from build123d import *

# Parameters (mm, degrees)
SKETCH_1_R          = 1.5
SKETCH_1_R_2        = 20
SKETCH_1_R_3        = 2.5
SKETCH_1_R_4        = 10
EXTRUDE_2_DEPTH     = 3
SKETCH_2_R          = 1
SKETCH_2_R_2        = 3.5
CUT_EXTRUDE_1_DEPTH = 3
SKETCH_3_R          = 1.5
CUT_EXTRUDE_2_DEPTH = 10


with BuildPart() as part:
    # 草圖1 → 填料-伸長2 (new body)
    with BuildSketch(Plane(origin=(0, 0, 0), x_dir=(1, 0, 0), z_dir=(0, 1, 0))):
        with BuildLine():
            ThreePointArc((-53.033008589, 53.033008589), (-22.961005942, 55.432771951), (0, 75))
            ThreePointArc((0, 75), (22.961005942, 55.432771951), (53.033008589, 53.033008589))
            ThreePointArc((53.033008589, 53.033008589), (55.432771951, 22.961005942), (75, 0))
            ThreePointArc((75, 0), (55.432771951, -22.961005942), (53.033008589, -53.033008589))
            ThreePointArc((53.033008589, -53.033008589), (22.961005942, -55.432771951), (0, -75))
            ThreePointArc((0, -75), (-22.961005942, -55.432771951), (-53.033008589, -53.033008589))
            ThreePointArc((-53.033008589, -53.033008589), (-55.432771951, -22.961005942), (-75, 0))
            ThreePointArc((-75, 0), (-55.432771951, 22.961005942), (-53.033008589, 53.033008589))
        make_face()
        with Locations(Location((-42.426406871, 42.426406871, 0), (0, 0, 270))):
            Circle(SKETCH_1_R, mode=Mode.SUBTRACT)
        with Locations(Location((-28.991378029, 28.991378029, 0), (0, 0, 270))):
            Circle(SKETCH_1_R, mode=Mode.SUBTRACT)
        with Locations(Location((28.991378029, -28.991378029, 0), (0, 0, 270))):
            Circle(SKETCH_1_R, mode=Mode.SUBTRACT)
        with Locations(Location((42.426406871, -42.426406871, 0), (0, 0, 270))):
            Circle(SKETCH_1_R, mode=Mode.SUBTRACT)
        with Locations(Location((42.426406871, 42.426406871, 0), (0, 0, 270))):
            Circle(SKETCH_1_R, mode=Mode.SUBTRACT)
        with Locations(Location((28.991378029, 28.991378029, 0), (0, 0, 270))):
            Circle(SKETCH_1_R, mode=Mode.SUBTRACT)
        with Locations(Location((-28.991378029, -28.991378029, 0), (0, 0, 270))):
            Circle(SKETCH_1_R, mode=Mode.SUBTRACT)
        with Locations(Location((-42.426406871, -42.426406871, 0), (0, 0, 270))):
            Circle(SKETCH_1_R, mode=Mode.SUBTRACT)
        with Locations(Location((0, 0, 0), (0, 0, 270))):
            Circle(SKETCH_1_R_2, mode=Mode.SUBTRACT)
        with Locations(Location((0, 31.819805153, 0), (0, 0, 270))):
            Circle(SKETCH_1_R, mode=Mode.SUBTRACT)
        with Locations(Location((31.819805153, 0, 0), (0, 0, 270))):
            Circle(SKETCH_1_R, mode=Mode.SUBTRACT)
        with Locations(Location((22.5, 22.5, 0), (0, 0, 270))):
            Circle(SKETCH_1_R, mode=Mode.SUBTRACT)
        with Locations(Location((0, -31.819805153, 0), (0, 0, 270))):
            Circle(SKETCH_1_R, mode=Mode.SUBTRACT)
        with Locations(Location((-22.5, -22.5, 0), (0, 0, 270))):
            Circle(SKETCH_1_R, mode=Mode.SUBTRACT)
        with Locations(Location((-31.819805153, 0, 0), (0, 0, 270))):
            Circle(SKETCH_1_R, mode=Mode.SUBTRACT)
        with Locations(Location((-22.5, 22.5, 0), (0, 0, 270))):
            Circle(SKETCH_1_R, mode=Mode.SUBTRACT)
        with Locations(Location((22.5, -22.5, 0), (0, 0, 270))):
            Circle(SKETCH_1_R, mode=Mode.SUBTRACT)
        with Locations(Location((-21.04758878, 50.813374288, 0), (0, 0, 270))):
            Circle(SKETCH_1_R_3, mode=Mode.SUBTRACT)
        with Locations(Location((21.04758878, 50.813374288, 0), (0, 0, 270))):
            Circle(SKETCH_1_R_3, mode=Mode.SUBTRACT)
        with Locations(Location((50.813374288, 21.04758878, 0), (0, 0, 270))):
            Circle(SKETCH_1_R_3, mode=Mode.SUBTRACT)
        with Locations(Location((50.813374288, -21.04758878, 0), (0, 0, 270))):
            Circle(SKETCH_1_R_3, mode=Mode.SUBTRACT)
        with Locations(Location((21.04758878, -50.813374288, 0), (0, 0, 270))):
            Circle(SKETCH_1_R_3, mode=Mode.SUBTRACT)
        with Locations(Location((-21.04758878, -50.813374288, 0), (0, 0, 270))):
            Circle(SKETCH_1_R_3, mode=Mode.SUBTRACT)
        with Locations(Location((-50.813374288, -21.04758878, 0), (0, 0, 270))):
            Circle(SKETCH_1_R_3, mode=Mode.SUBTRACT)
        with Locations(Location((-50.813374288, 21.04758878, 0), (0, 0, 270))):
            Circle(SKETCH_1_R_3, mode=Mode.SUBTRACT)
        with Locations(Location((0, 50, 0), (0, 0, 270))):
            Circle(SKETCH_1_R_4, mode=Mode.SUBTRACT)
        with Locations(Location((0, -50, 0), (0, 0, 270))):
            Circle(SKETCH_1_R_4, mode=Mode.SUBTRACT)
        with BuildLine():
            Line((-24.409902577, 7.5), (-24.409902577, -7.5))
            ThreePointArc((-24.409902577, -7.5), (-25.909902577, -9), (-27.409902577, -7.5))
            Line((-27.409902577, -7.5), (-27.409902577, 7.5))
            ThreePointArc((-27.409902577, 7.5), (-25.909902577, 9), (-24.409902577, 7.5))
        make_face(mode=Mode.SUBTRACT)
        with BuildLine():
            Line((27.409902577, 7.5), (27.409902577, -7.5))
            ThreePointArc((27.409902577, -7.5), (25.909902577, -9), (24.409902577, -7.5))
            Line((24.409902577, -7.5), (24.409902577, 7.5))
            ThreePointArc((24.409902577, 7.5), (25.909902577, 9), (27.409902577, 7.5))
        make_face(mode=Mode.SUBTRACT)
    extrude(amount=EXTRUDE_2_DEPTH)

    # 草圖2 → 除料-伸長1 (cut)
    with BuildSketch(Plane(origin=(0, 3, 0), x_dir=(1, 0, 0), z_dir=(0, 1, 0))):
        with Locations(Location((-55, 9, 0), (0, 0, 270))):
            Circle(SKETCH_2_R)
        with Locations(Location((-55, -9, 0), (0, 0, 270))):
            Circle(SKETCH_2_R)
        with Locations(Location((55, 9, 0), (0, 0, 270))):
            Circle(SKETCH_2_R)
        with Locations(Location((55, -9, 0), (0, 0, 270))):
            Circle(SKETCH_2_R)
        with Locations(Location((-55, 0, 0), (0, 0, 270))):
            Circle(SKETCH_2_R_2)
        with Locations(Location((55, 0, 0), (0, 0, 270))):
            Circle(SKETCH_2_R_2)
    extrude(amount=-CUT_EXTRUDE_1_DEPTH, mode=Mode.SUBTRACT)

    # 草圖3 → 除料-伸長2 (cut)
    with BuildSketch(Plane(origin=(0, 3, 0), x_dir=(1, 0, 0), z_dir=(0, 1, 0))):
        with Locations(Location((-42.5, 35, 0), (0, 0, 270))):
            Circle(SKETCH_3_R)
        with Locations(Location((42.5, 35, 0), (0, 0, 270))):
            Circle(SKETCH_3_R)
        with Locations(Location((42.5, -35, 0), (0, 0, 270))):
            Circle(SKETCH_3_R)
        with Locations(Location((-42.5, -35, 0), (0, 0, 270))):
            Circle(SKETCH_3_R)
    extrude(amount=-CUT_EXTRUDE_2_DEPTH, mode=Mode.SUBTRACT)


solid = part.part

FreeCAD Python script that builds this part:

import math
import FreeCAD as App
import Part
import Sketcher
from FreeCAD import Vector
Q = App.Units.Quantity

doc = App.newDocument("Part")
body = doc.addObject("PartDesign::Body", "Body")

# Sketch on XZ plane
sketch1 = body.newObject("Sketcher::SketchObject", "Sketch")
sketch1.AttachmentSupport = (doc.getObject("XZ_Plane"), [""])
sketch1.MapMode = "FlatFace"
sketch1.addGeometry(Part.ArcOfCircle(Part.Circle(Vector(-41.703631, -100.681472, 0), Vector(0, 0, 1), 48.97684), math.radians(31.625136), math.radians(103.374864)), False)
sketch1.addGeometry(Part.ArcOfCircle(Part.Circle(Vector(-100.681472, -41.703631, 0), Vector(0, 0, 1), 48.97684), math.radians(-13.374864), math.radians(58.374864)), False)
sketch1.addGeometry(Part.ArcOfCircle(Part.Circle(Vector(-100.681472, 41.703631, 0), Vector(0, 0, 1), 48.97684), math.radians(-58.374864), math.radians(13.374864)), False)
sketch1.addGeometry(Part.ArcOfCircle(Part.Circle(Vector(-41.703631, 100.681472, 0), Vector(0, 0, 1), 48.97684), math.radians(-103.374864), math.radians(-31.625136)), False)
sketch1.addGeometry(Part.ArcOfCircle(Part.Circle(Vector(41.703631, 100.681472, 0), Vector(0, 0, 1), 48.97684), math.radians(-148.374864), math.radians(-76.625136)), False)
sketch1.addGeometry(Part.ArcOfCircle(Part.Circle(Vector(100.681472, 41.703631, 0), Vector(0, 0, 1), 48.97684), math.radians(166.625136), math.radians(238.374864)), False)
sketch1.addGeometry(Part.ArcOfCircle(Part.Circle(Vector(100.681472, -41.703631, 0), Vector(0, 0, 1), 48.97684), math.radians(121.625136), math.radians(193.374864)), False)
sketch1.addGeometry(Part.ArcOfCircle(Part.Circle(Vector(41.703631, -100.681472, 0), Vector(0, 0, 1), 48.97684), math.radians(76.625136), math.radians(148.374864)), False)
sketch1.addGeometry(Part.Circle(Vector(42.426407, 42.426407, 0), Vector(0, 0, 1), 1.5), False)
sketch1.addGeometry(Part.Circle(Vector(21.047589, 50.813374, 0), Vector(0, 0, 1), 2.5), False)
sketch1.addGeometry(Part.Circle(Vector(50.813374, 21.047589, 0), Vector(0, 0, 1), 2.5), False)
sketch1.addGeometry(Part.Circle(Vector(28.991378, 28.991378, 0), Vector(0, 0, 1), 1.5), False)
sketch1.addGeometry(Part.Circle(Vector(22.5, 22.5, 0), Vector(0, 0, 1), 1.5), False)
sketch1.addGeometry(Part.Circle(Vector(0, 50, 0), Vector(0, 0, 1), 10), False)
sketch1.addGeometry(Part.Circle(Vector(-21.047589, 50.813374, 0), Vector(0, 0, 1), 2.5), False)
sketch1.addGeometry(Part.Circle(Vector(0, 31.819805, 0), Vector(0, 0, 1), 1.5), False)
sketch1.addGeometry(Part.Circle(Vector(-42.426407, 42.426407, 0), Vector(0, 0, 1), 1.5), False)
sketch1.addGeometry(Part.Circle(Vector(-22.5, 22.5, 0), Vector(0, 0, 1), 1.5), False)
sketch1.addGeometry(Part.Circle(Vector(-28.991378, 28.991378, 0), Vector(0, 0, 1), 1.5), False)
sketch1.addGeometry(Part.Circle(Vector(-50.813374, 21.047589, 0), Vector(0, 0, 1), 2.5), False)
sketch1.addGeometry(Part.Circle(Vector(31.819805, 0, 0), Vector(0, 0, 1), 1.5), False)
sketch1.addGeometry(Part.Circle(Vector(50.813374, -21.047589, 0), Vector(0, 0, 1), 2.5), False)
sketch1.addGeometry(Part.Circle(Vector(28.991378, -28.991378, 0), Vector(0, 0, 1), 1.5), False)
sketch1.addGeometry(Part.LineSegment(Vector(27.409903, -7.5, 0), Vector(27.409903, 7.5, 0)), False)
sketch1.addGeometry(Part.ArcOfCircle(Part.Circle(Vector(25.909903, 7.5, 0), Vector(0, 0, 1), 1.5), math.radians(0), math.radians(180)), False)
sketch1.addGeometry(Part.LineSegment(Vector(24.409903, 7.5, 0), Vector(24.409903, -7.5, 0)), False)
sketch1.addGeometry(Part.ArcOfCircle(Part.Circle(Vector(25.909903, -7.5, 0), Vector(0, 0, 1), 1.5), math.radians(180), math.radians(360)), False)
sketch1.addGeometry(Part.Circle(Vector(22.5, -22.5, 0), Vector(0, 0, 1), 1.5), False)
sketch1.addGeometry(Part.Circle(Vector(42.426407, -42.426407, 0), Vector(0, 0, 1), 1.5), False)
sketch1.addGeometry(Part.Circle(Vector(21.047589, -50.813374, 0), Vector(0, 0, 1), 2.5), False)
sketch1.addGeometry(Part.Circle(Vector(0, 0, 0), Vector(0, 0, 1), 20), False)
sketch1.addGeometry(Part.LineSegment(Vector(-24.409903, -7.5, 0), Vector(-24.409903, 7.5, 0)), False)
sketch1.addGeometry(Part.ArcOfCircle(Part.Circle(Vector(-25.909903, 7.5, 0), Vector(0, 0, 1), 1.5), math.radians(0), math.radians(180)), False)
sketch1.addGeometry(Part.LineSegment(Vector(-27.409903, 7.5, 0), Vector(-27.409903, -7.5, 0)), False)
sketch1.addGeometry(Part.ArcOfCircle(Part.Circle(Vector(-25.909903, -7.5, 0), Vector(0, 0, 1), 1.5), math.radians(180), math.radians(360)), False)
sketch1.addGeometry(Part.Circle(Vector(-22.5, -22.5, 0), Vector(0, 0, 1), 1.5), False)
sketch1.addGeometry(Part.Circle(Vector(-31.819805, 0, 0), Vector(0, 0, 1), 1.5), False)
sketch1.addGeometry(Part.Circle(Vector(-28.991378, -28.991378, 0), Vector(0, 0, 1), 1.5), False)
sketch1.addGeometry(Part.Circle(Vector(-50.813374, -21.047589, 0), Vector(0, 0, 1), 2.5), False)
sketch1.addGeometry(Part.Circle(Vector(0, -31.819805, 0), Vector(0, 0, 1), 1.5), False)
sketch1.addGeometry(Part.Circle(Vector(0, -50, 0), Vector(0, 0, 1), 10), False)
sketch1.addGeometry(Part.Circle(Vector(-21.047589, -50.813374, 0), Vector(0, 0, 1), 2.5), False)
sketch1.addGeometry(Part.Circle(Vector(-42.426407, -42.426407, 0), Vector(0, 0, 1), 1.5), False)
sketch1.addConstraint(Sketcher.Constraint("Coincident", 0, 2, 1, 1))
sketch1.addConstraint(Sketcher.Constraint("Coincident", 1, 2, 2, 1))
sketch1.addConstraint(Sketcher.Constraint("Coincident", 2, 2, 3, 1))
sketch1.addConstraint(Sketcher.Constraint("Coincident", 3, 2, 4, 1))
sketch1.addConstraint(Sketcher.Constraint("Coincident", 4, 2, 5, 1))
sketch1.addConstraint(Sketcher.Constraint("Coincident", 5, 2, 6, 1))
sketch1.addConstraint(Sketcher.Constraint("Coincident", 6, 2, 7, 1))
sketch1.addConstraint(Sketcher.Constraint("Coincident", 7, 2, 0, 1))
sketch1.addConstraint(Sketcher.Constraint("Tangent", 23, 2, 24, 1))
sketch1.addConstraint(Sketcher.Constraint("Tangent", 24, 2, 25, 1))
sketch1.addConstraint(Sketcher.Constraint("Tangent", 25, 2, 26, 1))
sketch1.addConstraint(Sketcher.Constraint("Tangent", 26, 2, 23, 1))
sketch1.addConstraint(Sketcher.Constraint("Tangent", 31, 2, 32, 1))
sketch1.addConstraint(Sketcher.Constraint("Tangent", 32, 2, 33, 1))
sketch1.addConstraint(Sketcher.Constraint("Tangent", 33, 2, 34, 1))
sketch1.addConstraint(Sketcher.Constraint("Tangent", 34, 2, 31, 1))
sketch1.addConstraint(Sketcher.Constraint("Vertical", 23))
sketch1.addConstraint(Sketcher.Constraint("Vertical", 25))
sketch1.addConstraint(Sketcher.Constraint("Vertical", 31))
sketch1.addConstraint(Sketcher.Constraint("Vertical", 33))
sketch1.addConstraint(Sketcher.Constraint("Coincident", 30, 3, -1, 1))
sketch1.addConstraint(Sketcher.Constraint("Equal", 0, 1))
sketch1.addConstraint(Sketcher.Constraint("Equal", 1, 2))
sketch1.addConstraint(Sketcher.Constraint("Equal", 2, 3))
sketch1.addConstraint(Sketcher.Constraint("Equal", 3, 4))
sketch1.addConstraint(Sketcher.Constraint("Equal", 4, 5))
sketch1.addConstraint(Sketcher.Constraint("Equal", 5, 6))
sketch1.addConstraint(Sketcher.Constraint("Equal", 6, 7))
sketch1.addConstraint(Sketcher.Constraint("Equal", 9, 10))
sketch1.addConstraint(Sketcher.Constraint("Equal", 8, 11))
sketch1.addConstraint(Sketcher.Constraint("Equal", 11, 12))
sketch1.addConstraint(Sketcher.Constraint("Equal", 10, 14))
sketch1.addConstraint(Sketcher.Constraint("Equal", 12, 15))
sketch1.addConstraint(Sketcher.Constraint("Equal", 15, 16))
sketch1.addConstraint(Sketcher.Constraint("Equal", 16, 17))
sketch1.addConstraint(Sketcher.Constraint("Equal", 17, 18))
sketch1.addConstraint(Sketcher.Constraint("Equal", 14, 19))
sketch1.addConstraint(Sketcher.Constraint("Equal", 18, 20))
sketch1.addConstraint(Sketcher.Constraint("Equal", 19, 21))
sketch1.addConstraint(Sketcher.Constraint("Equal", 20, 22))
sketch1.addConstraint(Sketcher.Constraint("Equal", 22, 24))
sketch1.addConstraint(Sketcher.Constraint("Equal", 26, 27))
sketch1.addConstraint(Sketcher.Constraint("Equal", 27, 28))
sketch1.addConstraint(Sketcher.Constraint("Equal", 21, 29))
sketch1.addConstraint(Sketcher.Constraint("Equal", 28, 32))
sketch1.addConstraint(Sketcher.Constraint("Equal", 34, 35))
sketch1.addConstraint(Sketcher.Constraint("Equal", 35, 36))
sketch1.addConstraint(Sketcher.Constraint("Equal", 36, 37))
sketch1.addConstraint(Sketcher.Constraint("Equal", 29, 38))
sketch1.addConstraint(Sketcher.Constraint("Equal", 37, 39))
sketch1.addConstraint(Sketcher.Constraint("Equal", 13, 40))
sketch1.addConstraint(Sketcher.Constraint("Equal", 38, 41))
sketch1.addConstraint(Sketcher.Constraint("Equal", 39, 42))
sketch1.addConstraint(Sketcher.Constraint("Symmetric", 0, 3, 4, 3, -1, 1))
sketch1.addConstraint(Sketcher.Constraint("Symmetric", 1, 3, 5, 3, -1, 1))
sketch1.addConstraint(Sketcher.Constraint("Symmetric", 2, 3, 6, 3, -1, 1))
sketch1.addConstraint(Sketcher.Constraint("Symmetric", 3, 3, 7, 3, -1, 1))
sketch1.addConstraint(Sketcher.Constraint("Symmetric", 19, 3, 21, 3, -1, 1))
sketch1.addConstraint(Sketcher.Constraint("Symmetric", 18, 3, 22, 3, -1, 1))
sketch1.addConstraint(Sketcher.Constraint("Symmetric", 17, 3, 27, 3, -1, 1))
sketch1.addConstraint(Sketcher.Constraint("Symmetric", 16, 3, 28, 3, -1, 1))
sketch1.addConstraint(Sketcher.Constraint("Symmetric", 14, 3, 29, 3, -1, 1))
sketch1.addConstraint(Sketcher.Constraint("Symmetric", 26, 3, 32, 3, -1, 1))
sketch1.addConstraint(Sketcher.Constraint("Symmetric", 12, 3, 35, 3, -1, 1))
sketch1.addConstraint(Sketcher.Constraint("Symmetric", 20, 3, 36, 3, -1, 1))
sketch1.addConstraint(Sketcher.Constraint("Symmetric", 11, 3, 37, 3, -1, 1))
sketch1.addConstraint(Sketcher.Constraint("Symmetric", 10, 3, 38, 3, -1, 1))
sketch1.addConstraint(Sketcher.Constraint("Symmetric", 15, 3, 39, 3, -1, 1))
sketch1.addConstraint(Sketcher.Constraint("Symmetric", 13, 3, 40, 3, -1, 1))
sketch1.addConstraint(Sketcher.Constraint("Symmetric", 9, 3, 41, 3, -1, 1))
sketch1.addConstraint(Sketcher.Constraint("Symmetric", 8, 3, 42, 3, -1, 1))
sketch1.addConstraint(Sketcher.Constraint("Symmetric", 3, 3, 4, 3, -2))
sketch1.addConstraint(Sketcher.Constraint("Symmetric", 2, 3, 5, 3, -2))
sketch1.addConstraint(Sketcher.Constraint("Symmetric", 9, 3, 14, 3, -2))
sketch1.addConstraint(Sketcher.Constraint("Symmetric", 8, 3, 16, 3, -2))
sketch1.addConstraint(Sketcher.Constraint("Symmetric", 12, 3, 17, 3, -2))
sketch1.addConstraint(Sketcher.Constraint("Symmetric", 11, 3, 18, 3, -2))
sketch1.addConstraint(Sketcher.Constraint("Symmetric", 10, 3, 19, 3, -2))
sketch1.addConstraint(Sketcher.Constraint("PointOnObject", 13, 3, -2))
sketch1.addConstraint(Sketcher.Constraint("PointOnObject", 15, 3, -2))
sketch1.addConstraint(Sketcher.Constraint("PointOnObject", 20, 3, -1))
sketch1.addConstraint(Sketcher.Constraint("Horizontal", 24, 3, 32, 3))
sketch1.addConstraint(Sketcher.Constraint("Horizontal", 26, 3, 34, 3))
sketch1.addConstraint(Sketcher.Constraint("Diameter", 8, Q("3 mm")))
sketch1.addConstraint(Sketcher.Constraint("Diameter", 9, Q("5 mm")))
sketch1.addConstraint(Sketcher.Constraint("Diameter", 13, Q("20 mm")))
sketch1.addConstraint(Sketcher.Constraint("Diameter", 30, Q("40 mm")))
sketch1.addConstraint(Sketcher.Constraint("DistanceY", 23, 1, 23, 2, Q("15 mm")))
sketch1.addConstraint(Sketcher.Constraint("DistanceY", -1, 1, 13, 3, Q("50 mm")))
sketch1.addConstraint(Sketcher.Constraint("DistanceX", 1, 2, -1, 1, Q("75 mm")))
sketch1.addConstraint(Sketcher.Constraint("DistanceY", -1, 1, 3, 2, Q("75 mm")))
sketch1.addConstraint(Sketcher.Constraint("DistanceX", 17, 3, 12, 3, Q("45 mm")))
sketch1.addConstraint(Sketcher.Constraint("DistanceY", 24, 3, 12, 3, Q("15 mm")))
sketch1.addConstraint(Sketcher.Constraint("Radius", 0, Q("48.97684 mm")))
sketch1.addConstraint(Sketcher.Constraint("DistanceY", 15, 3, 16, 3, Q("10.606602 mm")))
sketch1.addConstraint(Sketcher.Constraint("DistanceX", 20, 3, 8, 3, Q("10.606602 mm")))
sketch1.addConstraint(Sketcher.Constraint("DistanceX", 0, 2, 42, 3, Q("10.606602 mm")))
sketch1.addConstraint(Sketcher.Constraint("DistanceY", 0, 2, 42, 3, Q("10.606602 mm")))
sketch1.addConstraint(Sketcher.Constraint("DistanceX", 0, 3, -1, 1, Q("41.703631 mm")))
sketch1.addConstraint(Sketcher.Constraint("DistanceY", 1, 3, -1, 1, Q("41.703631 mm")))
sketch1.addConstraint(Sketcher.Constraint("DistanceX", -1, 1, 9, 3, Q("21.047589 mm")))
sketch1.addConstraint(Sketcher.Constraint("DistanceY", -1, 1, 10, 3, Q("21.047589 mm")))
sketch1.addConstraint(Sketcher.Constraint("DistanceX", -1, 1, 11, 3, Q("28.991378 mm")))
sketch1.addConstraint(Sketcher.Constraint("DistanceY", -1, 1, 11, 3, Q("28.991378 mm")))
sketch1.addConstraint(Sketcher.Constraint("DistanceY", 15, 3, 9, 3, Q("18.993569 mm")))
sketch1.addConstraint(Sketcher.Constraint("DistanceX", 20, 3, 10, 3, Q("18.993569 mm")))
sketch1.addConstraint(Sketcher.Constraint("DistanceX", 24, 3, 10, 3, Q("24.903472 mm")))
pad1 = body.newObject("PartDesign::Pad", "Pad")
pad1.Profile = sketch1
pad1.Length = 3
pad1.Reversed = True

# Sketch on XZ plane
sketch2 = body.newObject("Sketcher::SketchObject", "Sketch001")
sketch2.AttachmentSupport = (doc.getObject("XZ_Plane"), [""])
sketch2.MapMode = "FlatFace"
sketch2.AttachmentOffset = App.Placement(Vector(0, 0, -3), App.Rotation())
sketch2.addGeometry(Part.Circle(Vector(-55, -9, 0), Vector(0, 0, 1), 1), False)
sketch2.addGeometry(Part.Circle(Vector(-55, 9, 0), Vector(0, 0, 1), 1), False)
sketch2.addGeometry(Part.Circle(Vector(55, -9, 0), Vector(0, 0, 1), 1), False)
sketch2.addGeometry(Part.Circle(Vector(55, 9, 0), Vector(0, 0, 1), 1), False)
sketch2.addGeometry(Part.Circle(Vector(-55, 0, 0), Vector(0, 0, 1), 3.5), False)
sketch2.addGeometry(Part.Circle(Vector(55, 0, 0), Vector(0, 0, 1), 3.5), False)
sketch2.addConstraint(Sketcher.Constraint("Equal", 0, 1))
sketch2.addConstraint(Sketcher.Constraint("Equal", 1, 2))
sketch2.addConstraint(Sketcher.Constraint("Equal", 2, 3))
sketch2.addConstraint(Sketcher.Constraint("Equal", 4, 5))
sketch2.addConstraint(Sketcher.Constraint("Symmetric", 1, 3, 2, 3, -1, 1))
sketch2.addConstraint(Sketcher.Constraint("Symmetric", 0, 3, 3, 3, -1, 1))
sketch2.addConstraint(Sketcher.Constraint("Symmetric", 4, 3, 5, 3, -1, 1))
sketch2.addConstraint(Sketcher.Constraint("Symmetric", 0, 3, 2, 3, -2))
sketch2.addConstraint(Sketcher.Constraint("PointOnObject", 4, 3, -1))
sketch2.addConstraint(Sketcher.Constraint("Vertical", 1, 3, 4, 3))
sketch2.addConstraint(Sketcher.Constraint("Diameter", 0, Q("2 mm")))
sketch2.addConstraint(Sketcher.Constraint("Diameter", 4, Q("7 mm")))
sketch2.addConstraint(Sketcher.Constraint("DistanceX", 0, 3, -1, 1, Q("55 mm")))
sketch2.addConstraint(Sketcher.Constraint("DistanceY", 0, 3, -1, 1, Q("9 mm")))
pocket1 = body.newObject("PartDesign::Pocket", "Pocket")
pocket1.Profile = sketch2
pocket1.Length = 3
pocket1.Reversed = True

# Sketch on XZ plane
sketch3 = body.newObject("Sketcher::SketchObject", "Sketch002")
sketch3.AttachmentSupport = (doc.getObject("XZ_Plane"), [""])
sketch3.MapMode = "FlatFace"
sketch3.AttachmentOffset = App.Placement(Vector(0, 0, -3), App.Rotation())
sketch3.addGeometry(Part.Circle(Vector(-42.5, -35, 0), Vector(0, 0, 1), 1.5), False)
sketch3.addGeometry(Part.Circle(Vector(42.5, -35, 0), Vector(0, 0, 1), 1.5), False)
sketch3.addGeometry(Part.Circle(Vector(42.5, 35, 0), Vector(0, 0, 1), 1.5), False)
sketch3.addGeometry(Part.Circle(Vector(-42.5, 35, 0), Vector(0, 0, 1), 1.5), False)
sketch3.addConstraint(Sketcher.Constraint("Equal", 0, 1))
sketch3.addConstraint(Sketcher.Constraint("Equal", 1, 2))
sketch3.addConstraint(Sketcher.Constraint("Equal", 2, 3))
sketch3.addConstraint(Sketcher.Constraint("Symmetric", 0, 3, 2, 3, -1, 1))
sketch3.addConstraint(Sketcher.Constraint("Symmetric", 1, 3, 3, 3, -1, 1))
sketch3.addConstraint(Sketcher.Constraint("Symmetric", 0, 3, 1, 3, -2))
sketch3.addConstraint(Sketcher.Constraint("Diameter", 0, Q("3 mm")))
sketch3.addConstraint(Sketcher.Constraint("DistanceY", 0, 3, -1, 1, Q("35 mm")))
sketch3.addConstraint(Sketcher.Constraint("DistanceX", 0, 3, 1, 3, Q("85 mm")))
pocket2 = body.newObject("PartDesign::Pocket", "Pocket001")
pocket2.Profile = sketch3
pocket2.Length = 10
pocket2.Reversed = True

doc.recompute()
